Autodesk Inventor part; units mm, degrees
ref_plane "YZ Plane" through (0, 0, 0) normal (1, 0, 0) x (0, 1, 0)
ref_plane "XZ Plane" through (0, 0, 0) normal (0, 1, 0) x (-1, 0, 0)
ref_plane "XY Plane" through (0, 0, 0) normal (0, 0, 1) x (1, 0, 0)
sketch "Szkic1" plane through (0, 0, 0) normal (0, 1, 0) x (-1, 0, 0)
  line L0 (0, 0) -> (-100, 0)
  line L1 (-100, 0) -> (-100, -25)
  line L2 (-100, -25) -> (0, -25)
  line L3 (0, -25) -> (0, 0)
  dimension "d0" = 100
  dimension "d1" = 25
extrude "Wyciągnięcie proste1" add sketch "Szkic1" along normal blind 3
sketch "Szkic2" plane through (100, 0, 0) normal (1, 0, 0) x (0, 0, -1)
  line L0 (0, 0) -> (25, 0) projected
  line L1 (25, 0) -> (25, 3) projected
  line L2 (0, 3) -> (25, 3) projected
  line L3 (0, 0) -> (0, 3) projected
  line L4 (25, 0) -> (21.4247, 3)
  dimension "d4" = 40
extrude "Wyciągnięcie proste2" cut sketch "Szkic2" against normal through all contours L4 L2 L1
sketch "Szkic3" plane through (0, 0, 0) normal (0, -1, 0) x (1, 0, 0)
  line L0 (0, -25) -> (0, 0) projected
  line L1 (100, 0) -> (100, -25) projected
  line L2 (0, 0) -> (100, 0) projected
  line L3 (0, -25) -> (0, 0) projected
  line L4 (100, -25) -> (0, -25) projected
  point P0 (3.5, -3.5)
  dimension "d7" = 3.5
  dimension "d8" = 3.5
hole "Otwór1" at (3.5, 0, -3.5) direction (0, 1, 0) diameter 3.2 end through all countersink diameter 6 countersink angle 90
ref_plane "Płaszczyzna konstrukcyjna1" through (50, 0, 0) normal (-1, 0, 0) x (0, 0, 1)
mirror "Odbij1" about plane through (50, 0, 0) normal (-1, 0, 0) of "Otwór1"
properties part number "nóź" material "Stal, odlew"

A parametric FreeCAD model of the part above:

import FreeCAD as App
import Part
import Sketcher

V = App.Vector
Q = App.Units.Quantity


def add_polygon(sketch, points):
    """Adds a closed chain of lines whose ends are joined by coincident constraints."""
    first, n = sketch.GeometryCount, len(points)
    for a, b in zip(points, points[1:] + points[:1]):
        sketch.addGeometry(Part.LineSegment(App.Vector(*a, 0), App.Vector(*b, 0)), False)
    for i in range(n):
        sketch.addConstraint(Sketcher.Constraint("Coincident", first + i, 2, first + (i + 1) % n, 1))

doc = App.newDocument("Part")
params = doc.addObject("Spreadsheet::Sheet", "Params")
for row, (alias, value) in enumerate([
    ("sketch1_width", "100 mm"),
    ("sketch1_height", "25 mm"),
    ("pad1_length", "3 mm"),
    ("sketch2_width", "3 mm"),
    ("sketch3_diameter", "3.2 mm"),
    ("hole_diameter", "3.2 mm"),
    ("hole_csink_diameter", "6 mm"),
], start=1):
    params.set(f"A{row}", alias)
    params.set(f"B{row}", "=" + value)
    params.setAlias(f"B{row}", alias)

body = doc.addObject("PartDesign::Body", "Body")

# Sketch on XZ plane
sketch1 = body.newObject("Sketcher::SketchObject", "Sketch")
sketch1.AttachmentSupport = (doc.getObject("XZ_Plane"), [""])
sketch1.MapMode = "FlatFace"
add_polygon(sketch1, [(0, -25), (0, 0), (100, 0), (100, -25)])  # lines 0-3
sketch1.addConstraint(Sketcher.Constraint("Vertical", 0))
sketch1.addConstraint(Sketcher.Constraint("Horizontal", 1))
sketch1.addConstraint(Sketcher.Constraint("Vertical", 2))
sketch1.addConstraint(Sketcher.Constraint("Horizontal", 3))
sketch1.addConstraint(Sketcher.Constraint("Coincident", 0, 2, -1, 1))
sketch1.addConstraint(Sketcher.Constraint("DistanceX", 1, 1, 1, 2, 100.0))
sketch1.addConstraint(Sketcher.Constraint("DistanceY", 0, 1, 0, 2, 25.0))
sketch1.setExpression("Constraints[9]", "Params.sketch1_width")
sketch1.setExpression("Constraints[10]", "Params.sketch1_height")
pad1 = body.newObject("PartDesign::Pad", "Pad")
pad1.Profile = sketch1
pad1.setExpression("Length", "Params.pad1_length")
pad1.Reversed = True

# Sketch on YZ plane
sketch2 = body.newObject("Sketcher::SketchObject", "Sketch001")
sketch2.AttachmentSupport = (doc.getObject("YZ_Plane"), [""])
sketch2.MapMode = "FlatFace"
sketch2.AttachmentOffset = App.Placement(V(0, 0, 100), App.Rotation())
add_polygon(sketch2, [(3, -21.4247), (0, -25), (3, -25)])  # lines 0-2
sketch2.addConstraint(Sketcher.Constraint("Horizontal", 1))
sketch2.addConstraint(Sketcher.Constraint("Vertical", 2))
sketch2.addConstraint(Sketcher.Constraint("PointOnObject", 0, 2, -2))
sketch2.addConstraint(Sketcher.Constraint("DistanceX", 1, 1, 1, 2, 3.0))
sketch2.addConstraint(Sketcher.Constraint("Angle", 0, Q("-129.9997 deg")))
sketch2.addConstraint(Sketcher.Constraint("DistanceY", 0, 2, -1, 1, 25.0))
sketch2.setExpression("Constraints[6]", "Params.sketch2_width")
pocket1 = body.newObject("PartDesign::Pocket", "Pocket")
pocket1.Profile = sketch2
pocket1.Type = "ThroughAll"

# Sketch on XZ plane
sketch3 = body.newObject("Sketcher::SketchObject", "Sketch002")
sketch3.AttachmentSupport = (doc.getObject("XZ_Plane"), [""])
sketch3.MapMode = "FlatFace"
sketch3.addGeometry(Part.Circle(V(3.5, -3.5, 0), V(0, 0, 1), 1.6), False)
sketch3.addConstraint(Sketcher.Constraint("Diameter", 0, 3.2))
sketch3.addConstraint(Sketcher.Constraint("DistanceX", -1, 1, 0, 3, 3.5))
sketch3.addConstraint(Sketcher.Constraint("DistanceY", 0, 3, -1, 1, 3.5))
sketch3.setExpression("Constraints[0]", "Params.sketch3_diameter")
doc.recompute()
hole = body.newObject("PartDesign::Hole", "Hole")
hole.Profile = sketch3
hole.ThreadType = "None"
hole.setExpression("Diameter", "Params.hole_diameter")
hole.DepthType = "ThroughAll"
hole.HoleCutType = "Countersink"
hole.setExpression("HoleCutDiameter", "Params.hole_csink_diameter")
hole.HoleCutCountersinkAngle = 90
doc.recompute()

datumplane = body.newObject("PartDesign::Plane", "DatumPlane")
datumplane.AttachmentSupport = (doc.getObject("YZ_Plane"), [""])
datumplane.MapMode = "FlatFace"
datumplane.AttachmentOffset = App.Placement(V(0, 0, 50), App.Rotation())
mirrored = body.newObject("PartDesign::Mirrored", "Mirrored")
mirrored.Originals = [hole]
mirrored.MirrorPlane = (datumplane, [""])
body.Tip = mirrored

doc.recompute()
